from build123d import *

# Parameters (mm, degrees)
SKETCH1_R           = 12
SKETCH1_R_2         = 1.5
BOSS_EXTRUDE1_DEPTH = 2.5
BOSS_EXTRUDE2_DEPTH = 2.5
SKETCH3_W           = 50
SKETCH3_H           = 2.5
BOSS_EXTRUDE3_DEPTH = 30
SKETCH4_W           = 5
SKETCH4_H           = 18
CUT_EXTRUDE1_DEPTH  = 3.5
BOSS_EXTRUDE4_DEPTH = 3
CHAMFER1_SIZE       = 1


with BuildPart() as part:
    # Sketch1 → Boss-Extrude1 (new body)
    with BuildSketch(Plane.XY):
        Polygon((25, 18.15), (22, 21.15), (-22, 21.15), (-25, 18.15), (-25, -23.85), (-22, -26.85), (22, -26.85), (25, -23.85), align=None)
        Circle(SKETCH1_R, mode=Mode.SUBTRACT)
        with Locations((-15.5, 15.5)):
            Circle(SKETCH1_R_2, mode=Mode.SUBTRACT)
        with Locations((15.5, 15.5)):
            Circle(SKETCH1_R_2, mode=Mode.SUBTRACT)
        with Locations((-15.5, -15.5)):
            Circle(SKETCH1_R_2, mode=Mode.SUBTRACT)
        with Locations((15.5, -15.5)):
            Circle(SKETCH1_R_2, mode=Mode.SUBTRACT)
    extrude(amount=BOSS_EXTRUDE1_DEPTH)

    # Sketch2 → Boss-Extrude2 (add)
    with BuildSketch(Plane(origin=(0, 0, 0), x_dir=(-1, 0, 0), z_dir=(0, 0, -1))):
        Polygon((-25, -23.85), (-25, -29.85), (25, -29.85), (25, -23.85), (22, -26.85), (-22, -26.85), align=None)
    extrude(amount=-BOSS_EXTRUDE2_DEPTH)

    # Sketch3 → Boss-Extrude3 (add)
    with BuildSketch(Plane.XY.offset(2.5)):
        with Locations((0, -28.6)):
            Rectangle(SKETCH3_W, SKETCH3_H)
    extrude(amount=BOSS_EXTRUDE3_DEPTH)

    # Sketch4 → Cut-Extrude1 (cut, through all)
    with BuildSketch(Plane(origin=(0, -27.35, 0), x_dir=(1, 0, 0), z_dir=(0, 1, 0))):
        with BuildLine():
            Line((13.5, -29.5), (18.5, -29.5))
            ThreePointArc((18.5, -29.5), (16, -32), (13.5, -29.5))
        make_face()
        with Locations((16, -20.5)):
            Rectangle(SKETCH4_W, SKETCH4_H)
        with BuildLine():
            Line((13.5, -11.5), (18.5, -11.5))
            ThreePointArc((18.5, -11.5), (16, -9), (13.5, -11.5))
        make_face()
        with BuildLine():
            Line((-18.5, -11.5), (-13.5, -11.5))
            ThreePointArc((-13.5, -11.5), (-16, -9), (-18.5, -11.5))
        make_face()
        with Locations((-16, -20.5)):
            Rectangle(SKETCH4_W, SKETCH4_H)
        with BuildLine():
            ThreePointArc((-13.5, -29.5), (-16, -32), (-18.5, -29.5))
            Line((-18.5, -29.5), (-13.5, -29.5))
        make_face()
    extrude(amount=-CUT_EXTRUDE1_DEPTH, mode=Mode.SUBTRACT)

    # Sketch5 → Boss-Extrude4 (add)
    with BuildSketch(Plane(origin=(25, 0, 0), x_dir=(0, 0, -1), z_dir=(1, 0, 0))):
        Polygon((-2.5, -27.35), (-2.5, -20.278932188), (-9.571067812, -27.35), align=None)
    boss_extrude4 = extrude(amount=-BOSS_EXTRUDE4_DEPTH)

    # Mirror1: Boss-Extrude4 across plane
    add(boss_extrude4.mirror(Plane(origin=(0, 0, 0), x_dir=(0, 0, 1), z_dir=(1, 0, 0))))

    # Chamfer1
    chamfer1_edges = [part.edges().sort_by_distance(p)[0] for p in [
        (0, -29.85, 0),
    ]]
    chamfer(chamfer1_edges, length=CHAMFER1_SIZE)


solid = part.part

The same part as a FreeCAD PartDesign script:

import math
import FreeCAD as App
import Part
import Sketcher
Q = App.Units.Quantity


def edges_at(feature, points):
    """Names of the edges that pass closest to the given points."""
    edges = feature.Shape.Edges
    near = lambda p: min(range(len(edges)), key=lambda i: edges[i].distToShape(Part.Vertex(*p))[0])
    return sorted({f"Edge{near(p) + 1}" for p in points})


def add_polygon(sketch, points):
    """Adds a closed chain of lines whose ends are joined by coincident constraints."""
    first, n = sketch.GeometryCount, len(points)
    for a, b in zip(points, points[1:] + points[:1]):
        sketch.addGeometry(Part.LineSegment(App.Vector(*a, 0), App.Vector(*b, 0)), False)
    for i in range(n):
        sketch.addConstraint(Sketcher.Constraint("Coincident", first + i, 2, first + (i + 1) % n, 1))

doc = App.newDocument("Part")
body = doc.addObject("PartDesign::Body", "Body")

# Sketch on XY plane
sketch1 = body.newObject("Sketcher::SketchObject", "Sketch")
sketch1.AttachmentSupport = (doc.getObject("XY_Plane"), [""])
sketch1.MapMode = "FlatFace"
add_polygon(sketch1, [(25, 18.1), (22, 21.1), (-22, 21.1), (-25, 18.1), (-25, -23.9), (-22, -26.9), (22, -26.9), (25, -23.9)])  # lines 0-7
sketch1.addGeometry(Part.Circle(App.Vector(-15.5, -15.5, 0), App.Vector(0, 0, 1), 1.5), False)  # 8
sketch1.addGeometry(Part.Circle(App.Vector(15.5, -15.5, 0), App.Vector(0, 0, 1), 1.5), False)  # 9
sketch1.addGeometry(Part.Circle(App.Vector(-15.5, 15.5, 0), App.Vector(0, 0, 1), 1.5), False)  # 10
sketch1.addGeometry(Part.Circle(App.Vector(0, 0, 0), App.Vector(0, 0, 1), 12), False)  # 11
sketch1.addGeometry(Part.Circle(App.Vector(15.5, 15.5, 0), App.Vector(0, 0, 1), 1.5), False)  # 12
sketch1.addConstraint([
    Sketcher.Constraint("Horizontal", 1),
    Sketcher.Constraint("Vertical", 3),
    Sketcher.Constraint("Horizontal", 5),
    Sketcher.Constraint("Vertical", 7),
    Sketcher.Constraint("Coincident", 11, 3, -1, 1),
    Sketcher.Constraint("Equal", 8, 9),
    Sketcher.Constraint("Equal", 9, 10),
    Sketcher.Constraint("Equal", 10, 12),
    Sketcher.Constraint("Symmetric", 9, 3, 10, 3, -1, 1),
    Sketcher.Constraint("Symmetric", 8, 3, 12, 3, -1, 1),
    Sketcher.Constraint("Symmetric", 8, 3, 9, 3, -2),
    Sketcher.Constraint("Symmetric", 3, 2, 6, 2, -2),
    Sketcher.Constraint("Perpendicular", 0, 2),
    Sketcher.Constraint("Perpendicular", 2, 4),
    Sketcher.Constraint("Perpendicular", 4, 6),
    Sketcher.Constraint("Horizontal", 2, 2, 7, 2),
    Sketcher.Constraint("Vertical", 1, 2, 4, 2),
    Sketcher.Constraint("Vertical", 0, 2, 5, 2),
    Sketcher.Constraint("Diameter", 8, Q("3 mm")),
    Sketcher.Constraint("Diameter", 11, Q("24 mm")),
    Sketcher.Constraint("DistanceX", 1, 2, 1, 1, Q("44 mm")),
    Sketcher.Constraint("DistanceY", 3, 2, 3, 1, Q("42 mm")),
    Sketcher.Constraint("DistanceX", 2, 2, -1, 1, Q("25 mm")),
    Sketcher.Constraint("DistanceX", 8, 3, 9, 3, Q("31 mm")),
    Sketcher.Constraint("DistanceY", 8, 3, 10, 3, Q("31 mm")),
    Sketcher.Constraint("DistanceY", -1, 1, 0, 2, Q("21.15 mm")),
])
pad1 = body.newObject("PartDesign::Pad", "Pad")
pad1.Profile = sketch1
pad1.Length = 2.5

# Sketch on XY plane
sketch2 = body.newObject("Sketcher::SketchObject", "Sketch001")
sketch2.AttachmentSupport = (doc.getObject("XY_Plane"), [""])
sketch2.MapMode = "FlatFace"
add_polygon(sketch2, [(25, -23.9), (25, -29.9), (-25, -29.9), (-25, -23.9), (-22, -26.9), (22, -26.9)])  # lines 0-5
sketch2.addConstraint([
    Sketcher.Constraint("Vertical", 0),
    Sketcher.Constraint("Horizontal", 1),
    Sketcher.Constraint("Vertical", 2),
    Sketcher.Constraint("Horizontal", 4),
    Sketcher.Constraint("Symmetric", 2, 2, 5, 2, -2),
    Sketcher.Constraint("Perpendicular", 3, 5),
    Sketcher.Constraint("Equal", 3, 5),
    Sketcher.Constraint("DistanceX", 1, 2, 1, 1, Q("50 mm")),
    Sketcher.Constraint("DistanceX", 4, 1, 4, 2, Q("44 mm")),
    Sketcher.Constraint("DistanceY", 0, 2, 0, 1, Q("6 mm")),
    Sketcher.Constraint("DistanceY", 0, 2, -1, 1, Q("29.85 mm")),
])
pad2 = body.newObject("PartDesign::Pad", "Pad001")
pad2.Profile = sketch2
pad2.Length = 2.5

# Sketch on XY plane
sketch3 = body.newObject("Sketcher::SketchObject", "Sketch002")
sketch3.AttachmentSupport = (doc.getObject("XY_Plane"), [""])
sketch3.MapMode = "FlatFace"
sketch3.AttachmentOffset = App.Placement(App.Vector(0, 0, 2.5), App.Rotation())
add_polygon(sketch3, [(-25, -27.4), (-25, -29.9), (25, -29.9), (25, -27.4)])  # lines 0-3
sketch3.addConstraint([
    Sketcher.Constraint("Vertical", 0),
    Sketcher.Constraint("Horizontal", 1),
    Sketcher.Constraint("Vertical", 2),
    Sketcher.Constraint("Horizontal", 3),
    Sketcher.Constraint("DistanceX", 1, 1, 1, 2, Q("50 mm")),
    Sketcher.Constraint("DistanceY", 0, 2, 0, 1, Q("2.5 mm")),
    Sketcher.Constraint("DistanceX", 0, 2, -1, 1, Q("25 mm")),
    Sketcher.Constraint("DistanceY", 0, 2, -1, 1, Q("29.85 mm")),
])
pad3 = body.newObject("PartDesign::Pad", "Pad002")
pad3.Profile = sketch3
pad3.Length = 30

# Sketch on XZ plane
sketch4 = body.newObject("Sketcher::SketchObject", "Sketch003")
sketch4.AttachmentSupport = (doc.getObject("XZ_Plane"), [""])
sketch4.MapMode = "FlatFace"
sketch4.AttachmentOffset = App.Placement(App.Vector(0, 0, 27.35), App.Rotation())
sketch4.addGeometry([
    Part.ArcOfCircle(Part.Circle(App.Vector(16, 29.5, 0), App.Vector(0, 0, 1), 2.5), math.radians(0), math.radians(180)),  # 0
    Part.LineSegment(App.Vector(18.5, 29.5, 0), App.Vector(18.5, 11.5, 0)),  # 1
    Part.ArcOfCircle(Part.Circle(App.Vector(16, 11.5, 0), App.Vector(0, 0, 1), 2.5), math.radians(180), math.radians(360)),  # 2
    Part.LineSegment(App.Vector(13.5, 11.5, 0), App.Vector(13.5, 29.5, 0)),  # 3
    Part.ArcOfCircle(Part.Circle(App.Vector(-16, 11.5, 0), App.Vector(0, 0, 1), 2.5), math.radians(180), math.radians(360)),  # 4
    Part.LineSegment(App.Vector(-18.5, 11.5, 0), App.Vector(-18.5, 29.5, 0)),  # 5
    Part.ArcOfCircle(Part.Circle(App.Vector(-16, 29.5, 0), App.Vector(0, 0, 1), 2.5), math.radians(0), math.radians(180)),  # 6
    Part.LineSegment(App.Vector(-13.5, 29.5, 0), App.Vector(-13.5, 11.5, 0)),  # 7
], False)
sketch4.addConstraint([
    Sketcher.Constraint("Tangent", 0, 1, 1, 1),
    Sketcher.Constraint("Tangent", 1, 2, 2, 2),
    Sketcher.Constraint("Tangent", 2, 1, 3, 1),
    Sketcher.Constraint("Tangent", 3, 2, 0, 2),
    Sketcher.Constraint("Tangent", 4, 1, 5, 1),
    Sketcher.Constraint("Tangent", 5, 2, 6, 2),
    Sketcher.Constraint("Tangent", 6, 1, 7, 1),
    Sketcher.Constraint("Tangent", 7, 2, 4, 2),
    Sketcher.Constraint("Vertical", 1),
    Sketcher.Constraint("Vertical", 3),
    Sketcher.Constraint("Vertical", 5),
    Sketcher.Constraint("Vertical", 7),
    Sketcher.Constraint("Equal", 2, 4),
    Sketcher.Constraint("Symmetric", 2, 3, 4, 3, -2),
    Sketcher.Constraint("Horizontal", 0, 3, 6, 3),
    Sketcher.Constraint("Radius", 0, Q("2.5 mm")),
    Sketcher.Constraint("DistanceY", 1, 2, 1, 1, Q("18 mm")),
    Sketcher.Constraint("DistanceX", -1, 1, 0, 3, Q("16 mm")),
    Sketcher.Constraint("DistanceY", -1, 1, 0, 3, Q("29.5 mm")),
])
pocket1 = body.newObject("PartDesign::Pocket", "Pocket")
pocket1.Profile = sketch4
pocket1.Type = "ThroughAll"
pocket1.Reversed = True

# Sketch on YZ plane
sketch5 = body.newObject("Sketcher::SketchObject", "Sketch004")
sketch5.AttachmentSupport = (doc.getObject("YZ_Plane"), [""])
sketch5.MapMode = "FlatFace"
sketch5.AttachmentOffset = App.Placement(App.Vector(0, 0, 25), App.Rotation())
add_polygon(sketch5, [(-27, 2), (-20, 2), (-27, 10)])  # lines 0-2
sketch5.addConstraint([
    Sketcher.Constraint("Horizontal", 0),
    Sketcher.Constraint("Vertical", 2),
    Sketcher.Constraint("Equal", 0, 2),
    Sketcher.Constraint("Distance", 1, Q("10 mm")),
    Sketcher.Constraint("DistanceY", -1, 1, 0, 2, Q("2.5 mm")),
    Sketcher.Constraint("DistanceX", 1, 2, -1, 1, Q("27.35 mm")),
])
pad4 = body.newObject("PartDesign::Pad", "Pad003")
pad4.Profile = sketch5
pad4.Length = 3
pad4.Reversed = True
doc.recompute()

mirrored = body.newObject("PartDesign::Mirrored", "Mirrored")
mirrored.Originals = [pad4]
mirrored.MirrorPlane = (doc.getObject("YZ_Plane"), [""])
body.Tip = mirrored
doc.recompute()

chamfer = body.newObject("PartDesign::Chamfer", "Chamfer")
chamfer.Base = (mirrored, edges_at(mirrored, [(0, -29.85, 0)]))
chamfer.Size = 1

doc.recompute()
